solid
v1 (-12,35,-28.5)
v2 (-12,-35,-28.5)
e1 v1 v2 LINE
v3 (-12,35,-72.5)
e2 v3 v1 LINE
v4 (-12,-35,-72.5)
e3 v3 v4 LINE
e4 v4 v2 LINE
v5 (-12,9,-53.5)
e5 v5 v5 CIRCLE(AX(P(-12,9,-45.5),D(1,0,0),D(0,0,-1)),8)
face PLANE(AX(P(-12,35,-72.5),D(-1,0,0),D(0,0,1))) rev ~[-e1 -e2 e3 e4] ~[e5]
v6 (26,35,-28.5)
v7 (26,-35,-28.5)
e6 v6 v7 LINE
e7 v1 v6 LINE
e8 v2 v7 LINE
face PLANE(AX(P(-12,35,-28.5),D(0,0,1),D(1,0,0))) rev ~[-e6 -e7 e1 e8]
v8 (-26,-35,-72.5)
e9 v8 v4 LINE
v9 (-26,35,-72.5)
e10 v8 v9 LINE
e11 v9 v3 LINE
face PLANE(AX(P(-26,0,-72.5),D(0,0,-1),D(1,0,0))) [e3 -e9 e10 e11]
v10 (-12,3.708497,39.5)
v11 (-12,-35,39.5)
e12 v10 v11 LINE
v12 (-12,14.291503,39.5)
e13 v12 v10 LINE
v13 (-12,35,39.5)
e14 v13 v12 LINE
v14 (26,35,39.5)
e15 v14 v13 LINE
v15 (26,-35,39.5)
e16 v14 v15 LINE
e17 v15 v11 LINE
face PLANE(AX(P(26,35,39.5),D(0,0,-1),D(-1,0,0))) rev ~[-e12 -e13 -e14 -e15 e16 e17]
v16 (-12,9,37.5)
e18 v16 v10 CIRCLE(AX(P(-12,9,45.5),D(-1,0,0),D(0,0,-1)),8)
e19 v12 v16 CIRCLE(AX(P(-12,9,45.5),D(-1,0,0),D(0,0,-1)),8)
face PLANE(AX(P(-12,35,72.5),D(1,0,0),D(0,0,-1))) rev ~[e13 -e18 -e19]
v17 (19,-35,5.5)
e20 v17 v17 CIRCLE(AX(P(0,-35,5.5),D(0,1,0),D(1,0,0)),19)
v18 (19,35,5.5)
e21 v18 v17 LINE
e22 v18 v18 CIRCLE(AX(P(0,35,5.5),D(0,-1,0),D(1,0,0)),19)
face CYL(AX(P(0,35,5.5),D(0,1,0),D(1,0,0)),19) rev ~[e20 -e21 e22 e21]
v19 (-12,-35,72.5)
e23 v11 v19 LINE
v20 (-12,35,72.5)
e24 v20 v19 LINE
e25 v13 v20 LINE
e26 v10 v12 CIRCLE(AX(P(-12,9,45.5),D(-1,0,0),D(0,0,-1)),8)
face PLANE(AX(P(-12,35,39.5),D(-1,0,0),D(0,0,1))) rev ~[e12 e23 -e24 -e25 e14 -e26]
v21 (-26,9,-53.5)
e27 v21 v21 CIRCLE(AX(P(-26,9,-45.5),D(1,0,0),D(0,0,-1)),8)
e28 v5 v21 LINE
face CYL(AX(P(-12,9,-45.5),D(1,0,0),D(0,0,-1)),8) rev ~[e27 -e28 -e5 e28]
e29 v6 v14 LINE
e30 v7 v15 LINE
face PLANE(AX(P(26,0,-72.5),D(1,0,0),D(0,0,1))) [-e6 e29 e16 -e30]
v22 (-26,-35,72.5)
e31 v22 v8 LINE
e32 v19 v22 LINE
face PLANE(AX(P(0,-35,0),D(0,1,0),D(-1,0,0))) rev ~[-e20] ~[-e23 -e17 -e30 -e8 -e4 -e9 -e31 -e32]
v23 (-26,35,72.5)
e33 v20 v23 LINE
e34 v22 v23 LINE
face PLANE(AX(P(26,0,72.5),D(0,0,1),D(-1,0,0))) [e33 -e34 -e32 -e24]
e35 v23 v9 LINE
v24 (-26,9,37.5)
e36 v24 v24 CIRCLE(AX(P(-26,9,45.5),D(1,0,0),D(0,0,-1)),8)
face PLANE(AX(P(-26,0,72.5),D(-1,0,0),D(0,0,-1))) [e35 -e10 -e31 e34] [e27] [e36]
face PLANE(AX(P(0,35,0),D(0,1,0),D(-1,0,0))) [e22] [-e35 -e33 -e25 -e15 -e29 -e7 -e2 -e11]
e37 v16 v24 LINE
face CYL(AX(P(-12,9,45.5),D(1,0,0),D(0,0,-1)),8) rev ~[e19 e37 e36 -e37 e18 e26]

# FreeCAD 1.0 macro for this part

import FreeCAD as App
import Part
import Sketcher

doc = App.newDocument("Part")
body = doc.addObject("PartDesign::Body", "Body")

# Sketch on XZ plane
sketch1 = body.newObject("Sketcher::SketchObject", "Sketch")
sketch1.AttachmentSupport = (doc.getObject("XZ_Plane"), [""])
sketch1.MapMode = "FlatFace"
sketch1.addGeometry(Part.LineSegment(App.Vector(26, -72.5, 0), App.Vector(-26, -72.5, 0)), False)
sketch1.addGeometry(Part.LineSegment(App.Vector(-26, -72.5, 0), App.Vector(-26, 72.5, 0)), False)
sketch1.addGeometry(Part.LineSegment(App.Vector(-26, 72.5, 0), App.Vector(26, 72.5, 0)), False)
sketch1.addGeometry(Part.LineSegment(App.Vector(26, 72.5, 0), App.Vector(26, -72.5, 0)), False)
sketch1.addConstraint(Sketcher.Constraint("Coincident", 0, 2, 1, 1))
sketch1.addConstraint(Sketcher.Constraint("Coincident", 1, 2, 2, 1))
sketch1.addConstraint(Sketcher.Constraint("Coincident", 2, 2, 3, 1))
sketch1.addConstraint(Sketcher.Constraint("Coincident", 3, 2, 0, 1))
sketch1.addConstraint(Sketcher.Constraint("Horizontal", 0))
sketch1.addConstraint(Sketcher.Constraint("Vertical", 1))
sketch1.addConstraint(Sketcher.Constraint("Horizontal", 2))
sketch1.addConstraint(Sketcher.Constraint("Vertical", 3))
sketch1.addConstraint(Sketcher.Constraint("Symmetric", 0, 2, 2, 2, -1, 1))
sketch1.addConstraint(Sketcher.Constraint("DistanceX", 0, 2, 0, 1, 52.0))
sketch1.addConstraint(Sketcher.Constraint("DistanceY", 1, 1, 1, 2, 145.0))
pad1 = body.newObject("PartDesign::Pad", "Pad")
pad1.Profile = sketch1
pad1.Length = 70
pad1.Midplane = True

# Sketch on XZ plane
sketch2 = body.newObject("Sketcher::SketchObject", "Sketch001")
sketch2.AttachmentSupport = (doc.getObject("XZ_Plane"), [""])
sketch2.MapMode = "FlatFace"
sketch2.AttachmentOffset = App.Placement(App.Vector(0, 0, -35), App.Rotation())
sketch2.addGeometry(Part.LineSegment(App.Vector(-12, 72.5, 0), App.Vector(26, 72.5, 0)), False)
sketch2.addGeometry(Part.LineSegment(App.Vector(26, 72.5, 0), App.Vector(26, 39.5, 0)), False)
sketch2.addGeometry(Part.LineSegment(App.Vector(26, 39.5, 0), App.Vector(-12, 39.5, 0)), False)
sketch2.addGeometry(Part.LineSegment(App.Vector(-12, 39.5, 0), App.Vector(-12, 72.5, 0)), False)
sketch2.addGeometry(Part.LineSegment(App.Vector(-12, -28.5, 0), App.Vector(26, -28.5, 0)), False)
sketch2.addGeometry(Part.LineSegment(App.Vector(26, -28.5, 0), App.Vector(26, -72.5, 0)), False)
sketch2.addGeometry(Part.LineSegment(App.Vector(26, -72.5, 0), App.Vector(-12, -72.5, 0)), False)
sketch2.addGeometry(Part.LineSegment(App.Vector(-12, -72.5, 0), App.Vector(-12, -28.5, 0)), False)
sketch2.addConstraint(Sketcher.Constraint("Coincident", 0, 2, 1, 1))
sketch2.addConstraint(Sketcher.Constraint("Coincident", 1, 2, 2, 1))
sketch2.addConstraint(Sketcher.Constraint("Coincident", 2, 2, 3, 1))
sketch2.addConstraint(Sketcher.Constraint("Coincident", 3, 2, 0, 1))
sketch2.addConstraint(Sketcher.Constraint("Coincident", 4, 2, 5, 1))
sketch2.addConstraint(Sketcher.Constraint("Coincident", 5, 2, 6, 1))
sketch2.addConstraint(Sketcher.Constraint("Coincident", 6, 2, 7, 1))
sketch2.addConstraint(Sketcher.Constraint("Coincident", 7, 2, 4, 1))
sketch2.addConstraint(Sketcher.Constraint("Horizontal", 0))
sketch2.addConstraint(Sketcher.Constraint("Vertical", 1))
sketch2.addConstraint(Sketcher.Constraint("Horizontal", 2))
sketch2.addConstraint(Sketcher.Constraint("Vertical", 3))
sketch2.addConstraint(Sketcher.Constraint("Horizontal", 4))
sketch2.addConstraint(Sketcher.Constraint("Vertical", 5))
sketch2.addConstraint(Sketcher.Constraint("Horizontal", 6))
sketch2.addConstraint(Sketcher.Constraint("Vertical", 7))
sketch2.addConstraint(Sketcher.Constraint("Symmetric", 0, 2, 5, 2, -1))
sketch2.addConstraint(Sketcher.Constraint("Vertical", 3, 2, 6, 2))
sketch2.addConstraint(Sketcher.Constraint("DistanceX", 0, 1, 0, 2, 38.0))
sketch2.addConstraint(Sketcher.Constraint("DistanceY", 5, 2, 5, 1, 44.0))
sketch2.addConstraint(Sketcher.Constraint("DistanceY", 4, 2, 1, 2, 68.0))
sketch2.addConstraint(Sketcher.Constraint("DistanceY", 1, 2, 1, 1, 33.0))
sketch2.addConstraint(Sketcher.Constraint("DistanceX", -1, 1, 0, 2, 26.0))
pocket1 = body.newObject("PartDesign::Pocket", "Pocket")
pocket1.Profile = sketch2
pocket1.Length = 70
pocket1.Reversed = True

# Sketch on YZ plane
sketch3 = body.newObject("Sketcher::SketchObject", "Sketch002")
sketch3.AttachmentSupport = (doc.getObject("YZ_Plane"), [""])
sketch3.MapMode = "FlatFace"
sketch3.AttachmentOffset = App.Placement(App.Vector(0, 0, -12), App.Rotation())
sketch3.addGeometry(Part.Circle(App.Vector(9, 45.5, 0), App.Vector(0, 0, 1), 8), False)
sketch3.addGeometry(Part.Circle(App.Vector(9, -45.5, 0), App.Vector(0, 0, 1), 8), False)
sketch3.addConstraint(Sketcher.Constraint("Equal", 0, 1))
sketch3.addConstraint(Sketcher.Constraint("Symmetric", 0, 3, 1, 3, -1))
sketch3.addConstraint(Sketcher.Constraint("Diameter", 0, 16.0))
sketch3.addConstraint(Sketcher.Constraint("DistanceX", -1, 1, 0, 3, 9.0))
sketch3.addConstraint(Sketcher.Constraint("DistanceY", 1, 3, 0, 3, 91.0))
pocket2 = body.newObject("PartDesign::Pocket", "Pocket001")
pocket2.Profile = sketch3
pocket2.Length = 70

# Sketch on XZ plane
sketch4 = body.newObject("Sketcher::SketchObject", "Sketch003")
sketch4.AttachmentSupport = (doc.getObject("XZ_Plane"), [""])
sketch4.MapMode = "FlatFace"
sketch4.AttachmentOffset = App.Placement(App.Vector(0, 0, -35), App.Rotation())
sketch4.addGeometry(Part.Circle(App.Vector(0, 5.5, 0), App.Vector(0, 0, 1), 19), False)
sketch4.addConstraint(Sketcher.Constraint("PointOnObject", 0, 3, -2))
sketch4.addConstraint(Sketcher.Constraint("Diameter", 0, 38.0))
sketch4.addConstraint(Sketcher.Constraint("DistanceY", -1, 1, 0, 3, 5.5))
pocket3 = body.newObject("PartDesign::Pocket", "Pocket002")
pocket3.Profile = sketch4
pocket3.Length = 70
pocket3.Reversed = True

doc.recompute()
